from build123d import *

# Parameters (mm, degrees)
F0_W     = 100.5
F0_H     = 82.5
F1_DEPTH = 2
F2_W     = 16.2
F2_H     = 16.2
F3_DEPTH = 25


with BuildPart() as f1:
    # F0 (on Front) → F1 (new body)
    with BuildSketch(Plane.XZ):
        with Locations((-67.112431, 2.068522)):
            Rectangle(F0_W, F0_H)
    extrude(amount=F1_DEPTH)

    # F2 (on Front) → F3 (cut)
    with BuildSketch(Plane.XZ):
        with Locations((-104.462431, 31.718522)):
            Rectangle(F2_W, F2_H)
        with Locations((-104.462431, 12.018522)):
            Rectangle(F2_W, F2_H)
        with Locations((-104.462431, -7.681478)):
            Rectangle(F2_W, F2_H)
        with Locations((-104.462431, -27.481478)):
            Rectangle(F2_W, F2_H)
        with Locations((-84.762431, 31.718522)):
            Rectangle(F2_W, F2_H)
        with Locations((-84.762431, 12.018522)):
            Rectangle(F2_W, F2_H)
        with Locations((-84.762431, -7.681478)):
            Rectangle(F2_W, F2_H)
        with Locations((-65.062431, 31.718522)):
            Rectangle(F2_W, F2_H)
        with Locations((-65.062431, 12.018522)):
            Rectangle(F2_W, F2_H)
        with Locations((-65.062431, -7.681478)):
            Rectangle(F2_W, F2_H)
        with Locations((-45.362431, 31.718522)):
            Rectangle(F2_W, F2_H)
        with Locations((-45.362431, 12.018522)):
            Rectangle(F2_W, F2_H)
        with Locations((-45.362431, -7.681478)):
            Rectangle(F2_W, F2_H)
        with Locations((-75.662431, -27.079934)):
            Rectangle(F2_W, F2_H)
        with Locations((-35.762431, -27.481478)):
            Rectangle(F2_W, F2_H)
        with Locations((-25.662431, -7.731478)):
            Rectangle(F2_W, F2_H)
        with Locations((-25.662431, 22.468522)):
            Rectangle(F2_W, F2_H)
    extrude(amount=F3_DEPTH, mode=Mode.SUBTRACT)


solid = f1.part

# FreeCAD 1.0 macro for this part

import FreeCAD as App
import Part
import Sketcher

V = App.Vector


def add_polygon(sketch, points):
    """Adds a closed chain of lines whose ends are joined by coincident constraints."""
    first, n = sketch.GeometryCount, len(points)
    for a, b in zip(points, points[1:] + points[:1]):
        sketch.addGeometry(Part.LineSegment(App.Vector(*a, 0), App.Vector(*b, 0)), False)
    for i in range(n):
        sketch.addConstraint(Sketcher.Constraint("Coincident", first + i, 2, first + (i + 1) % n, 1))

doc = App.newDocument("Part")
body = doc.addObject("PartDesign::Body", "Body")

sketch1 = body.newObject("Sketcher::SketchObject", "Sketch")
sketch1.AttachmentSupport = (doc.getObject("XZ_Plane"), [""])
sketch1.MapMode = "FlatFace"
add_polygon(sketch1, [(-117, 43), (-117, -39), (-17, -39), (-17, 43)])
sketch1.addConstraint(Sketcher.Constraint("Vertical", 0))
sketch1.addConstraint(Sketcher.Constraint("Horizontal", 1))
sketch1.addConstraint(Sketcher.Constraint("Vertical", 2))
sketch1.addConstraint(Sketcher.Constraint("Horizontal", 3))
sketch1.addConstraint(Sketcher.Constraint("DistanceX", 1, 1, 1, 2, 100.5))
sketch1.addConstraint(Sketcher.Constraint("DistanceY", 0, 2, 0, 1, 82.5))
sketch1.addConstraint(Sketcher.Constraint("DistanceX", 0, 2, -1, 1, 117.362431))
sketch1.addConstraint(Sketcher.Constraint("DistanceY", 0, 2, -1, 1, 39.181478))
pad1 = body.newObject("PartDesign::Pad", "Pad")
pad1.Profile = sketch1
pad1.Length = 2

sketch2 = body.newObject("Sketcher::SketchObject", "Sketch001")
sketch2.AttachmentSupport = (doc.getObject("XZ_Plane"), [""])
sketch2.MapMode = "FlatFace"
add_polygon(sketch2, [(-113, 40), (-113, 24), (-96, 24), (-96, 40)])
add_polygon(sketch2, [(-113, 20), (-113, 4), (-96, 4), (-96, 20)])
add_polygon(sketch2, [(-113, 0), (-113, -16), (-96, -16), (-96, 0)])
add_polygon(sketch2, [(-113, -19), (-113, -36), (-96, -36), (-96, -19)])
add_polygon(sketch2, [(-93, 40), (-93, 24), (-77, 24), (-77, 40)])
add_polygon(sketch2, [(-93, 20), (-93, 4), (-77, 4), (-77, 20)])
add_polygon(sketch2, [(-93, 0), (-93, -16), (-77, -16), (-77, 0)])
add_polygon(sketch2, [(-73, 40), (-73, 24), (-57, 24), (-57, 40)])
add_polygon(sketch2, [(-73, 20), (-73, 4), (-57, 4), (-57, 20)])
add_polygon(sketch2, [(-73, 0), (-73, -16), (-57, -16), (-57, 0)])
add_polygon(sketch2, [(-53, 40), (-53, 24), (-37, 24), (-37, 40)])
add_polygon(sketch2, [(-53, 20), (-53, 4), (-37, 4), (-37, 20)])
add_polygon(sketch2, [(-53, 0), (-53, -16), (-37, -16), (-37, 0)])
add_polygon(sketch2, [(-84, -19), (-84, -35), (-68, -35), (-68, -19)])
add_polygon(sketch2, [(-44, -19), (-44, -36), (-28, -36), (-28, -19)])
add_polygon(sketch2, [(-34, 0), (-34, -16), (-18, -16), (-18, 0)])
add_polygon(sketch2, [(-34, 31), (-34, 14), (-18, 14), (-18, 31)])
sketch2.addConstraint(Sketcher.Constraint("Vertical", 0))
sketch2.addConstraint(Sketcher.Constraint("Horizontal", 1))
sketch2.addConstraint(Sketcher.Constraint("Vertical", 2))
sketch2.addConstraint(Sketcher.Constraint("Horizontal", 3))
sketch2.addConstraint(Sketcher.Constraint("Vertical", 4))
sketch2.addConstraint(Sketcher.Constraint("Horizontal", 5))
sketch2.addConstraint(Sketcher.Constraint("Vertical", 6))
sketch2.addConstraint(Sketcher.Constraint("Horizontal", 7))
sketch2.addConstraint(Sketcher.Constraint("Vertical", 8))
sketch2.addConstraint(Sketcher.Constraint("Horizontal", 9))
sketch2.addConstraint(Sketcher.Constraint("Vertical", 10))
sketch2.addConstraint(Sketcher.Constraint("Horizontal", 11))
sketch2.addConstraint(Sketcher.Constraint("Vertical", 12))
sketch2.addConstraint(Sketcher.Constraint("Horizontal", 13))
sketch2.addConstraint(Sketcher.Constraint("Vertical", 14))
sketch2.addConstraint(Sketcher.Constraint("Horizontal", 15))
sketch2.addConstraint(Sketcher.Constraint("Vertical", 16))
sketch2.addConstraint(Sketcher.Constraint("Horizontal", 17))
sketch2.addConstraint(Sketcher.Constraint("Vertical", 18))
sketch2.addConstraint(Sketcher.Constraint("Horizontal", 19))
sketch2.addConstraint(Sketcher.Constraint("Vertical", 20))
sketch2.addConstraint(Sketcher.Constraint("Horizontal", 21))
sketch2.addConstraint(Sketcher.Constraint("Vertical", 22))
sketch2.addConstraint(Sketcher.Constraint("Horizontal", 23))
sketch2.addConstraint(Sketcher.Constraint("Vertical", 24))
sketch2.addConstraint(Sketcher.Constraint("Horizontal", 25))
sketch2.addConstraint(Sketcher.Constraint("Vertical", 26))
sketch2.addConstraint(Sketcher.Constraint("Horizontal", 27))
sketch2.addConstraint(Sketcher.Constraint("Vertical", 28))
sketch2.addConstraint(Sketcher.Constraint("Horizontal", 29))
sketch2.addConstraint(Sketcher.Constraint("Vertical", 30))
sketch2.addConstraint(Sketcher.Constraint("Horizontal", 31))
sketch2.addConstraint(Sketcher.Constraint("Vertical", 32))
sketch2.addConstraint(Sketcher.Constraint("Horizontal", 33))
sketch2.addConstraint(Sketcher.Constraint("Vertical", 34))
sketch2.addConstraint(Sketcher.Constraint("Horizontal", 35))
sketch2.addConstraint(Sketcher.Constraint("Vertical", 36))
sketch2.addConstraint(Sketcher.Constraint("Horizontal", 37))
sketch2.addConstraint(Sketcher.Constraint("Vertical", 38))
sketch2.addConstraint(Sketcher.Constraint("Horizontal", 39))
sketch2.addConstraint(Sketcher.Constraint("Vertical", 40))
sketch2.addConstraint(Sketcher.Constraint("Horizontal", 41))
sketch2.addConstraint(Sketcher.Constraint("Vertical", 42))
sketch2.addConstraint(Sketcher.Constraint("Horizontal", 43))
sketch2.addConstraint(Sketcher.Constraint("Vertical", 44))
sketch2.addConstraint(Sketcher.Constraint("Horizontal", 45))
sketch2.addConstraint(Sketcher.Constraint("Vertical", 46))
sketch2.addConstraint(Sketcher.Constraint("Horizontal", 47))
sketch2.addConstraint(Sketcher.Constraint("Vertical", 48))
sketch2.addConstraint(Sketcher.Constraint("Horizontal", 49))
sketch2.addConstraint(Sketcher.Constraint("Vertical", 50))
sketch2.addConstraint(Sketcher.Constraint("Horizontal", 51))
sketch2.addConstraint(Sketcher.Constraint("Vertical", 52))
sketch2.addConstraint(Sketcher.Constraint("Horizontal", 53))
sketch2.addConstraint(Sketcher.Constraint("Vertical", 54))
sketch2.addConstraint(Sketcher.Constraint("Horizontal", 55))
sketch2.addConstraint(Sketcher.Constraint("Vertical", 56))
sketch2.addConstraint(Sketcher.Constraint("Horizontal", 57))
sketch2.addConstraint(Sketcher.Constraint("Vertical", 58))
sketch2.addConstraint(Sketcher.Constraint("Horizontal", 59))
sketch2.addConstraint(Sketcher.Constraint("Vertical", 60))
sketch2.addConstraint(Sketcher.Constraint("Horizontal", 61))
sketch2.addConstraint(Sketcher.Constraint("Vertical", 62))
sketch2.addConstraint(Sketcher.Constraint("Horizontal", 63))
sketch2.addConstraint(Sketcher.Constraint("Vertical", 64))
sketch2.addConstraint(Sketcher.Constraint("Horizontal", 65))
sketch2.addConstraint(Sketcher.Constraint("Vertical", 66))
sketch2.addConstraint(Sketcher.Constraint("Horizontal", 67))
sketch2.addConstraint(Sketcher.Constraint("Horizontal", 1, 2, 16, 2))
sketch2.addConstraint(Sketcher.Constraint("Horizontal", 3, 2, 18, 2))
sketch2.addConstraint(Sketcher.Constraint("Horizontal", 5, 2, 20, 2))
sketch2.addConstraint(Sketcher.Constraint("Horizontal", 7, 2, 22, 2))
sketch2.addConstraint(Sketcher.Constraint("Horizontal", 9, 2, 24, 2))
sketch2.addConstraint(Sketcher.Constraint("Horizontal", 11, 2, 26, 2))
sketch2.addConstraint(Sketcher.Constraint("Horizontal", 17, 2, 28, 2))
sketch2.addConstraint(Sketcher.Constraint("Horizontal", 19, 2, 30, 2))
sketch2.addConstraint(Sketcher.Constraint("Horizontal", 21, 2, 32, 2))
sketch2.addConstraint(Sketcher.Constraint("Horizontal", 23, 2, 34, 2))
sketch2.addConstraint(Sketcher.Constraint("Horizontal", 25, 2, 36, 2))
sketch2.addConstraint(Sketcher.Constraint("Horizontal", 27, 2, 38, 2))
sketch2.addConstraint(Sketcher.Constraint("Horizontal", 29, 2, 40, 2))
sketch2.addConstraint(Sketcher.Constraint("Horizontal", 31, 2, 42, 2))
sketch2.addConstraint(Sketcher.Constraint("Horizontal", 33, 2, 44, 2))
sketch2.addConstraint(Sketcher.Constraint("Horizontal", 35, 2, 46, 2))
sketch2.addConstraint(Sketcher.Constraint("Horizontal", 37, 2, 48, 2))
sketch2.addConstraint(Sketcher.Constraint("Horizontal", 39, 2, 50, 2))
sketch2.addConstraint(Sketcher.Constraint("Horizontal", 13, 2, 56, 2))
sketch2.addConstraint(Sketcher.Constraint("Horizontal", 15, 2, 58, 2))
sketch2.addConstraint(Sketcher.Constraint("Vertical", 3, 2, 4, 2))
sketch2.addConstraint(Sketcher.Constraint("Vertical", 2, 2, 5, 2))
sketch2.addConstraint(Sketcher.Constraint("Vertical", 7, 2, 8, 2))
sketch2.addConstraint(Sketcher.Constraint("Vertical", 6, 2, 9, 2))
sketch2.addConstraint(Sketcher.Constraint("Vertical", 11, 2, 12, 2))
sketch2.addConstraint(Sketcher.Constraint("Vertical", 10, 2, 13, 2))
sketch2.addConstraint(Sketcher.Constraint("Vertical", 19, 2, 20, 2))
sketch2.addConstraint(Sketcher.Constraint("Vertical", 18, 2, 21, 2))
sketch2.addConstraint(Sketcher.Constraint("Vertical", 23, 2, 24, 2))
sketch2.addConstraint(Sketcher.Constraint("Vertical", 22, 2, 25, 2))
sketch2.addConstraint(Sketcher.Constraint("Vertical", 31, 2, 32, 2))
sketch2.addConstraint(Sketcher.Constraint("Vertical", 30, 2, 33, 2))
sketch2.addConstraint(Sketcher.Constraint("Vertical", 35, 2, 36, 2))
sketch2.addConstraint(Sketcher.Constraint("Vertical", 34, 2, 37, 2))
sketch2.addConstraint(Sketcher.Constraint("Vertical", 43, 2, 44, 2))
sketch2.addConstraint(Sketcher.Constraint("Vertical", 42, 2, 45, 2))
sketch2.addConstraint(Sketcher.Constraint("Vertical", 47, 2, 48, 2))
sketch2.addConstraint(Sketcher.Constraint("Vertical", 46, 2, 49, 2))
sketch2.addConstraint(Sketcher.Constraint("Vertical", 63, 2, 64, 2))
sketch2.addConstraint(Sketcher.Constraint("Vertical", 62, 2, 65, 2))
sketch2.addConstraint(Sketcher.Constraint("Equal", 15, 17))
sketch2.addConstraint(Sketcher.Constraint("Equal", 27, 29))
sketch2.addConstraint(Sketcher.Constraint("Equal", 39, 41))
sketch2.addConstraint(Sketcher.Constraint("Equal", 51, 53))
sketch2.addConstraint(Sketcher.Constraint("Equal", 55, 57))
sketch2.addConstraint(Sketcher.Constraint("Equal", 59, 61))
sketch2.addConstraint(Sketcher.Constraint("Equal", 67, 0))
sketch2.addConstraint(Sketcher.Constraint("Equal", 2, 4))
sketch2.addConstraint(Sketcher.Constraint("Equal", 6, 8))
sketch2.addConstraint(Sketcher.Constraint("Equal", 10, 12))
sketch2.addConstraint(Sketcher.Constraint("Equal", 50, 52))
sketch2.addConstraint(Sketcher.Constraint("Equal", 58, 60))
sketch2.addConstraint(Sketcher.Constraint("Equal", 62, 64))
sketch2.addConstraint(Sketcher.Constraint("DistanceX", 1, 1, 1, 2, 16.2))
sketch2.addConstraint(Sketcher.Constraint("DistanceX", 0, 2, -1, 1, 112.562431))
sketch2.addConstraint(Sketcher.Constraint("DistanceY", -1, 1, 0, 2, 23.618522))
sketch2.addConstraint(Sketcher.Constraint("DistanceY", -1, 1, 4, 2, 3.918522))
sketch2.addConstraint(Sketcher.Constraint("DistanceY", 14, 2, -1, 1, 19.381478))
sketch2.addConstraint(Sketcher.Constraint("DistanceX", 16, 2, -1, 1, 92.862431))
sketch2.addConstraint(Sketcher.Constraint("DistanceX", 28, 2, -1, 1, 73.162431))
sketch2.addConstraint(Sketcher.Constraint("DistanceX", 40, 2, -1, 1, 53.462431))
sketch2.addConstraint(Sketcher.Constraint("DistanceX", 52, 2, -1, 1, 83.762431))
sketch2.addConstraint(Sketcher.Constraint("DistanceX", 56, 2, -1, 1, 43.862431))
sketch2.addConstraint(Sketcher.Constraint("DistanceX", 60, 2, -1, 1, 33.762431))
sketch2.addConstraint(Sketcher.Constraint("DistanceY", 8, 2, -1, 1, 15.781478))
sketch2.addConstraint(Sketcher.Constraint("DistanceY", 52, 2, -1, 1, 35.179934))
sketch2.addConstraint(Sketcher.Constraint("DistanceY", 60, 2, -1, 1, 15.831478))
sketch2.addConstraint(Sketcher.Constraint("DistanceY", -1, 1, 64, 2, 14.368522))
pocket1 = body.newObject("PartDesign::Pocket", "Pocket")
pocket1.Profile = sketch2
pocket1.Length = 25
pocket1.Reversed = True

doc.recompute()
